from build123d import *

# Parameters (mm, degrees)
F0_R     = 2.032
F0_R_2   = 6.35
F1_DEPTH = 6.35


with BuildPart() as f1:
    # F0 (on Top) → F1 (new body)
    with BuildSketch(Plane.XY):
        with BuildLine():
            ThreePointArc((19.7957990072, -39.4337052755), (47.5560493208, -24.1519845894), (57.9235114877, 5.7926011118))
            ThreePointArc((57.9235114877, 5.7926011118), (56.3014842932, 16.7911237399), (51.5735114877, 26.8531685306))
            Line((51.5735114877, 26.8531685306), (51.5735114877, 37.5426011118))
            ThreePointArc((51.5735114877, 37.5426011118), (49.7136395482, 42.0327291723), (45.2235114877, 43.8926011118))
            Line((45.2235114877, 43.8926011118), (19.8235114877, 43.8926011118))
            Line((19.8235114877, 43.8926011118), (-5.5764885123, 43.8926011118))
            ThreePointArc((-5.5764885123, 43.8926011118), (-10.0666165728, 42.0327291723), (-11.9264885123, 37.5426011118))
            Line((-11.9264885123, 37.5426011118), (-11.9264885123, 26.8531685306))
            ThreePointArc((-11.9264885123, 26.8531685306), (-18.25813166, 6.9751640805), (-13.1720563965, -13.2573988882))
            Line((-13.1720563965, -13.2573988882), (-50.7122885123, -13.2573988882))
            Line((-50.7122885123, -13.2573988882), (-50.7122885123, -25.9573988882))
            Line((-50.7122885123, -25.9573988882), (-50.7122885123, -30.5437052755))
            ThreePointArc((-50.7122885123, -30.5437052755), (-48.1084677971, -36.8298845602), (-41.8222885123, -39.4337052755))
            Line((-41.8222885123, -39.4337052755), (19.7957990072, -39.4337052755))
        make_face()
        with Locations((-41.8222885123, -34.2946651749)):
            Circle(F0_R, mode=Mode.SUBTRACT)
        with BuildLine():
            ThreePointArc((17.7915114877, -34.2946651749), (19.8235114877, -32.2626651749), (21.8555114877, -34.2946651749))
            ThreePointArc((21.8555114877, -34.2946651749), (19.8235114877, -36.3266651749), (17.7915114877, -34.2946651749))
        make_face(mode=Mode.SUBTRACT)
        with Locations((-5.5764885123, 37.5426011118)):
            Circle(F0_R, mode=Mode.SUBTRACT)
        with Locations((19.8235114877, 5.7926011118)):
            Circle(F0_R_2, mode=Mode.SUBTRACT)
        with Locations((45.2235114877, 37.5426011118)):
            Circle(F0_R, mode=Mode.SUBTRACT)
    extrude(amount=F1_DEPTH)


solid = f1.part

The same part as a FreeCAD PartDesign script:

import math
import FreeCAD as App
import Part
import Sketcher
Q = App.Units.Quantity

doc = App.newDocument("Part")
body = doc.addObject("PartDesign::Body", "Body")

# Sketch on XY plane
sketch1 = body.newObject("Sketcher::SketchObject", "Sketch")
sketch1.AttachmentSupport = (doc.getObject("XY_Plane"), [""])
sketch1.MapMode = "FlatFace"
sketch1.addGeometry([
    Part.ArcOfCircle(Part.Circle(App.Vector(13.807466, 4.299516, 0), App.Vector(0, 0, 1), 44.141305), math.radians(-82.203051), math.radians(1.938406)),  # 0
    Part.ArcOfCircle(Part.Circle(App.Vector(19.823511, 5.792601, 0), App.Vector(0, 0, 1), 38.1), math.radians(0), math.radians(33.55731)),  # 1
    Part.LineSegment(App.Vector(51.573511, 26.853169, 0), App.Vector(51.573511, 37.542601, 0)),  # 2
    Part.ArcOfCircle(Part.Circle(App.Vector(45.223511, 37.542601, 0), App.Vector(0, 0, 1), 6.35), math.radians(0), math.radians(90)),  # 3
    Part.LineSegment(App.Vector(45.223511, 43.892601, 0), App.Vector(-5.576489, 43.892601, 0)),  # 4
    Part.ArcOfCircle(Part.Circle(App.Vector(-5.576489, 37.542601, 0), App.Vector(0, 0, 1), 6.35), math.radians(90), math.radians(180)),  # 5
    Part.LineSegment(App.Vector(-11.926489, 37.542601, 0), App.Vector(-11.926489, 26.853169, 0)),  # 6
    Part.ArcOfCircle(Part.Circle(App.Vector(19.823511, 5.792601, 0), App.Vector(0, 0, 1), 38.1), math.radians(146.44269), math.radians(210)),  # 7
    Part.LineSegment(App.Vector(-13.172056, -13.257399, 0), App.Vector(-50.712289, -13.257399, 0)),  # 8
    Part.LineSegment(App.Vector(-50.712289, -13.257399, 0), App.Vector(-50.712289, -30.543705, 0)),  # 9
    Part.ArcOfCircle(Part.Circle(App.Vector(-41.822289, -30.543705, 0), App.Vector(0, 0, 1), 8.89), math.radians(180), math.radians(270)),  # 10
    Part.LineSegment(App.Vector(-41.822289, -39.433705, 0), App.Vector(19.795799, -39.433705, 0)),  # 11
    Part.Circle(App.Vector(-41.822289, -34.294665, 0), App.Vector(0, 0, 1), 2.032),  # 12
    Part.Circle(App.Vector(19.823511, -34.294665, 0), App.Vector(0, 0, 1), 2.032),  # 13
    Part.Circle(App.Vector(-5.576489, 37.542601, 0), App.Vector(0, 0, 1), 2.032),  # 14
    Part.Circle(App.Vector(19.823511, 5.792601, 0), App.Vector(0, 0, 1), 6.35),  # 15
    Part.Circle(App.Vector(45.223511, 37.542601, 0), App.Vector(0, 0, 1), 2.032),  # 16
], False)
sketch1.addConstraint([
    Sketcher.Constraint("Coincident", 0, 2, 1, 1),
    Sketcher.Constraint("Coincident", 1, 2, 2, 1),
    Sketcher.Constraint("Tangent", 2, 2, 3, 1),
    Sketcher.Constraint("Tangent", 3, 2, 4, 1),
    Sketcher.Constraint("Tangent", 4, 2, 5, 1),
    Sketcher.Constraint("Tangent", 5, 2, 6, 1),
    Sketcher.Constraint("Coincident", 6, 2, 7, 1),
    Sketcher.Constraint("Coincident", 7, 2, 8, 1),
    Sketcher.Constraint("Coincident", 8, 2, 9, 1),
    Sketcher.Constraint("Tangent", 9, 2, 10, 1),
    Sketcher.Constraint("Tangent", 10, 2, 11, 1),
    Sketcher.Constraint("Coincident", 11, 2, 0, 1),
    Sketcher.Constraint("Vertical", 2),
    Sketcher.Constraint("Horizontal", 4),
    Sketcher.Constraint("Vertical", 6),
    Sketcher.Constraint("Horizontal", 8),
    Sketcher.Constraint("Vertical", 9),
    Sketcher.Constraint("Horizontal", 11),
    Sketcher.Constraint("Coincident", 7, 3, 1, 3),
    Sketcher.Constraint("Coincident", 14, 3, 5, 3),
    Sketcher.Constraint("Coincident", 15, 3, 1, 3),
    Sketcher.Constraint("Coincident", 16, 3, 3, 3),
    Sketcher.Constraint("Equal", 3, 5),
    Sketcher.Constraint("Equal", 1, 7),
    Sketcher.Constraint("Equal", 12, 13),
    Sketcher.Constraint("Equal", 13, 14),
    Sketcher.Constraint("Equal", 5, 15),
    Sketcher.Constraint("Equal", 14, 16),
    Sketcher.Constraint("Horizontal", 12, 3, 13, 3),
    Sketcher.Constraint("Horizontal", 15, 3, 0, 2),
    Sketcher.Constraint("Horizontal", 1, 2, 6, 2),
    Sketcher.Constraint("Vertical", 10, 3, 12, 3),
    Sketcher.Constraint("Vertical", 7, 3, 13, 3),
    Sketcher.Constraint("Diameter", 15, Q("0.5 in")),
    Sketcher.Constraint("Radius", 1, Q("1.5 in")),
    Sketcher.Constraint("Diameter", 12, Q("0.16 in")),
    Sketcher.Constraint("DistanceX", 4, 2, 4, 1, Q("2 in")),
    Sketcher.Constraint("Radius", 10, Q("0.35 in")),
    Sketcher.Constraint("DistanceY", 8, 2, 5, 2, Q("2 in")),
    Sketcher.Constraint("DistanceY", 0, 2, 3, 2, Q("1.5 in")),
    Sketcher.Constraint("DistanceX", 10, 3, 1, 3, Q("2.427 in")),
    Sketcher.Constraint("Radius", 0, 44.141305),
    Sketcher.Constraint("DistanceY", -1, 1, 1, 3, 5.792601),
    Sketcher.Constraint("DistanceX", -1, 1, 11, 2, 19.795799),
    Sketcher.Constraint("DistanceX", 11, 1, 11, 2, 61.618088),
    Sketcher.Constraint("DistanceY", 9, 2, 9, 1, 17.286306),
    Sketcher.Constraint("DistanceY", 12, 3, 10, 3, 3.75096),
])
pad1 = body.newObject("PartDesign::Pad", "Pad")
pad1.Profile = sketch1
pad1.Length = Q("0.25 in")

doc.recompute()
